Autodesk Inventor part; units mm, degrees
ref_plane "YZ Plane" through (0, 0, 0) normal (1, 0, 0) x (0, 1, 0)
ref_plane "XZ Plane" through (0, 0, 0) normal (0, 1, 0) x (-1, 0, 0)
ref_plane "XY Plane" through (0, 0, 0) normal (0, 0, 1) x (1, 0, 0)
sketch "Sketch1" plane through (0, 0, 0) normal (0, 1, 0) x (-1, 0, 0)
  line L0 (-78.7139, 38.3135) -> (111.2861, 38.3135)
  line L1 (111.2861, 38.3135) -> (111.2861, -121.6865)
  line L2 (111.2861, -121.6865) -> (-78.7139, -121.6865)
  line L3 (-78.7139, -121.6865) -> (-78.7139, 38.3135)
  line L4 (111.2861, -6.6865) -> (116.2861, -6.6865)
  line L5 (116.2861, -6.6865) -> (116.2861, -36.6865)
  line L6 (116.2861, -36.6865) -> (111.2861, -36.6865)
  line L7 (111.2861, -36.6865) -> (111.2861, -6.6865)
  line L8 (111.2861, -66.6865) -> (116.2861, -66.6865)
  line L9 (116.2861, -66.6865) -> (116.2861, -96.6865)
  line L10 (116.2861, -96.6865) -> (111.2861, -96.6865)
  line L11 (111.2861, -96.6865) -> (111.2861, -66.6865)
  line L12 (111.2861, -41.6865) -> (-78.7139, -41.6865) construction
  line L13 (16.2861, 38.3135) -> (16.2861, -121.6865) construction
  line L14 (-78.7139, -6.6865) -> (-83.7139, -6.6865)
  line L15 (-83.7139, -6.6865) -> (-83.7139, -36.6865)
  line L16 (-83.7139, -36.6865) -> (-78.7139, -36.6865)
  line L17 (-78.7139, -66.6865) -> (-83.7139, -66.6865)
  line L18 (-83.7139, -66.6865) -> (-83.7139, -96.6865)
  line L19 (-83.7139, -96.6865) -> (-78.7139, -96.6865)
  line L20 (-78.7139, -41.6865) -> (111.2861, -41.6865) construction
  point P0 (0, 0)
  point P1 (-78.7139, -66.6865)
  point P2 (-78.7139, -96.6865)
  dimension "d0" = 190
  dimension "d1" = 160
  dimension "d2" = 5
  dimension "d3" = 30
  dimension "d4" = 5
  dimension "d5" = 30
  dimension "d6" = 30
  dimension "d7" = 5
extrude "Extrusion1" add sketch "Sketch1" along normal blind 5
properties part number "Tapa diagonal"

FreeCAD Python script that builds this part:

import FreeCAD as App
import Part
import Sketcher

V = App.Vector
Q = App.Units.Quantity


def add_polygon(sketch, points):
    """Adds a closed chain of lines whose ends are joined by coincident constraints."""
    first, n = sketch.GeometryCount, len(points)
    for a, b in zip(points, points[1:] + points[:1]):
        sketch.addGeometry(Part.LineSegment(App.Vector(*a, 0), App.Vector(*b, 0)), False)
    for i in range(n):
        sketch.addConstraint(Sketcher.Constraint("Coincident", first + i, 2, first + (i + 1) % n, 1))

doc = App.newDocument("Part")
body = doc.addObject("PartDesign::Body", "Body")

sketch1 = body.newObject("Sketcher::SketchObject", "Sketch")
sketch1.AttachmentSupport = (doc.getObject("XZ_Plane"), [""])
sketch1.MapMode = "FlatFace"
add_polygon(sketch1, [(-111.2861, 38.3135), (78.7139, 38.3135), (78.7139, -6.6865), (83.7139, -6.6865), (83.7139, -36.6865), (78.7139, -36.6865), (78.7139, -66.6865), (83.7139, -66.6865), (83.7139, -96.6865), (78.7139, -96.6865), (78.7139, -121.6865), (-111.2861, -121.6865), (-111.2861, -96.6865), (-116.2861, -96.6865), (-116.2861, -66.6865), (-111.2861, -66.6865), (-111.2861, -36.6865), (-116.2861, -36.6865), (-116.2861, -6.6865), (-111.2861, -6.6865)])
sketch1.addConstraint([
    Sketcher.Constraint("Horizontal", 0),
    Sketcher.Constraint("Vertical", 1),
    Sketcher.Constraint("Horizontal", 2),
    Sketcher.Constraint("Vertical", 3),
    Sketcher.Constraint("Horizontal", 4),
    Sketcher.Constraint("Vertical", 5),
    Sketcher.Constraint("Horizontal", 6),
    Sketcher.Constraint("Vertical", 7),
    Sketcher.Constraint("Horizontal", 8),
    Sketcher.Constraint("Vertical", 9),
    Sketcher.Constraint("Horizontal", 10),
    Sketcher.Constraint("Vertical", 11),
    Sketcher.Constraint("Horizontal", 12),
    Sketcher.Constraint("Vertical", 13),
    Sketcher.Constraint("Horizontal", 14),
    Sketcher.Constraint("Vertical", 15),
    Sketcher.Constraint("Horizontal", 16),
    Sketcher.Constraint("Vertical", 17),
    Sketcher.Constraint("Horizontal", 18),
    Sketcher.Constraint("Vertical", 19),
    Sketcher.Constraint("Horizontal", 8, 2, 11, 2),
    Sketcher.Constraint("Horizontal", 6, 2, 13, 2),
    Sketcher.Constraint("Horizontal", 4, 2, 15, 2),
    Sketcher.Constraint("Horizontal", 2, 2, 17, 2),
    Sketcher.Constraint("Vertical", 1, 2, 4, 2),
    Sketcher.Constraint("Vertical", 3, 2, 6, 2),
    Sketcher.Constraint("Vertical", 5, 2, 8, 2),
    Sketcher.Constraint("Vertical", 11, 2, 14, 2),
    Sketcher.Constraint("Vertical", 13, 2, 16, 2),
    Sketcher.Constraint("Vertical", 15, 2, 18, 2),
    Sketcher.Constraint("Equal", 8, 12),
    Sketcher.Constraint("Equal", 3, 5),
    Sketcher.Constraint("Equal", 5, 7),
    Sketcher.Constraint("DistanceX", 0, 1, 0, 2, Q("190 mm")),
    Sketcher.Constraint("DistanceX", 2, 1, 2, 2, Q("5 mm")),
    Sketcher.Constraint("DistanceY", 3, 2, 3, 1, Q("30 mm")),
    Sketcher.Constraint("DistanceY", 1, 2, 1, 1, Q("45 mm")),
    Sketcher.Constraint("DistanceY", 9, 2, 9, 1, Q("25 mm")),
    Sketcher.Constraint("DistanceX", -1, 1, 0, 2, Q("78.714 mm")),
    Sketcher.Constraint("DistanceY", -1, 1, 0, 2, Q("38.3135 mm")),
])
pad1 = body.newObject("PartDesign::Pad", "Pad")
pad1.Profile = sketch1
pad1.Length = 5
pad1.Reversed = True

doc.recompute()
